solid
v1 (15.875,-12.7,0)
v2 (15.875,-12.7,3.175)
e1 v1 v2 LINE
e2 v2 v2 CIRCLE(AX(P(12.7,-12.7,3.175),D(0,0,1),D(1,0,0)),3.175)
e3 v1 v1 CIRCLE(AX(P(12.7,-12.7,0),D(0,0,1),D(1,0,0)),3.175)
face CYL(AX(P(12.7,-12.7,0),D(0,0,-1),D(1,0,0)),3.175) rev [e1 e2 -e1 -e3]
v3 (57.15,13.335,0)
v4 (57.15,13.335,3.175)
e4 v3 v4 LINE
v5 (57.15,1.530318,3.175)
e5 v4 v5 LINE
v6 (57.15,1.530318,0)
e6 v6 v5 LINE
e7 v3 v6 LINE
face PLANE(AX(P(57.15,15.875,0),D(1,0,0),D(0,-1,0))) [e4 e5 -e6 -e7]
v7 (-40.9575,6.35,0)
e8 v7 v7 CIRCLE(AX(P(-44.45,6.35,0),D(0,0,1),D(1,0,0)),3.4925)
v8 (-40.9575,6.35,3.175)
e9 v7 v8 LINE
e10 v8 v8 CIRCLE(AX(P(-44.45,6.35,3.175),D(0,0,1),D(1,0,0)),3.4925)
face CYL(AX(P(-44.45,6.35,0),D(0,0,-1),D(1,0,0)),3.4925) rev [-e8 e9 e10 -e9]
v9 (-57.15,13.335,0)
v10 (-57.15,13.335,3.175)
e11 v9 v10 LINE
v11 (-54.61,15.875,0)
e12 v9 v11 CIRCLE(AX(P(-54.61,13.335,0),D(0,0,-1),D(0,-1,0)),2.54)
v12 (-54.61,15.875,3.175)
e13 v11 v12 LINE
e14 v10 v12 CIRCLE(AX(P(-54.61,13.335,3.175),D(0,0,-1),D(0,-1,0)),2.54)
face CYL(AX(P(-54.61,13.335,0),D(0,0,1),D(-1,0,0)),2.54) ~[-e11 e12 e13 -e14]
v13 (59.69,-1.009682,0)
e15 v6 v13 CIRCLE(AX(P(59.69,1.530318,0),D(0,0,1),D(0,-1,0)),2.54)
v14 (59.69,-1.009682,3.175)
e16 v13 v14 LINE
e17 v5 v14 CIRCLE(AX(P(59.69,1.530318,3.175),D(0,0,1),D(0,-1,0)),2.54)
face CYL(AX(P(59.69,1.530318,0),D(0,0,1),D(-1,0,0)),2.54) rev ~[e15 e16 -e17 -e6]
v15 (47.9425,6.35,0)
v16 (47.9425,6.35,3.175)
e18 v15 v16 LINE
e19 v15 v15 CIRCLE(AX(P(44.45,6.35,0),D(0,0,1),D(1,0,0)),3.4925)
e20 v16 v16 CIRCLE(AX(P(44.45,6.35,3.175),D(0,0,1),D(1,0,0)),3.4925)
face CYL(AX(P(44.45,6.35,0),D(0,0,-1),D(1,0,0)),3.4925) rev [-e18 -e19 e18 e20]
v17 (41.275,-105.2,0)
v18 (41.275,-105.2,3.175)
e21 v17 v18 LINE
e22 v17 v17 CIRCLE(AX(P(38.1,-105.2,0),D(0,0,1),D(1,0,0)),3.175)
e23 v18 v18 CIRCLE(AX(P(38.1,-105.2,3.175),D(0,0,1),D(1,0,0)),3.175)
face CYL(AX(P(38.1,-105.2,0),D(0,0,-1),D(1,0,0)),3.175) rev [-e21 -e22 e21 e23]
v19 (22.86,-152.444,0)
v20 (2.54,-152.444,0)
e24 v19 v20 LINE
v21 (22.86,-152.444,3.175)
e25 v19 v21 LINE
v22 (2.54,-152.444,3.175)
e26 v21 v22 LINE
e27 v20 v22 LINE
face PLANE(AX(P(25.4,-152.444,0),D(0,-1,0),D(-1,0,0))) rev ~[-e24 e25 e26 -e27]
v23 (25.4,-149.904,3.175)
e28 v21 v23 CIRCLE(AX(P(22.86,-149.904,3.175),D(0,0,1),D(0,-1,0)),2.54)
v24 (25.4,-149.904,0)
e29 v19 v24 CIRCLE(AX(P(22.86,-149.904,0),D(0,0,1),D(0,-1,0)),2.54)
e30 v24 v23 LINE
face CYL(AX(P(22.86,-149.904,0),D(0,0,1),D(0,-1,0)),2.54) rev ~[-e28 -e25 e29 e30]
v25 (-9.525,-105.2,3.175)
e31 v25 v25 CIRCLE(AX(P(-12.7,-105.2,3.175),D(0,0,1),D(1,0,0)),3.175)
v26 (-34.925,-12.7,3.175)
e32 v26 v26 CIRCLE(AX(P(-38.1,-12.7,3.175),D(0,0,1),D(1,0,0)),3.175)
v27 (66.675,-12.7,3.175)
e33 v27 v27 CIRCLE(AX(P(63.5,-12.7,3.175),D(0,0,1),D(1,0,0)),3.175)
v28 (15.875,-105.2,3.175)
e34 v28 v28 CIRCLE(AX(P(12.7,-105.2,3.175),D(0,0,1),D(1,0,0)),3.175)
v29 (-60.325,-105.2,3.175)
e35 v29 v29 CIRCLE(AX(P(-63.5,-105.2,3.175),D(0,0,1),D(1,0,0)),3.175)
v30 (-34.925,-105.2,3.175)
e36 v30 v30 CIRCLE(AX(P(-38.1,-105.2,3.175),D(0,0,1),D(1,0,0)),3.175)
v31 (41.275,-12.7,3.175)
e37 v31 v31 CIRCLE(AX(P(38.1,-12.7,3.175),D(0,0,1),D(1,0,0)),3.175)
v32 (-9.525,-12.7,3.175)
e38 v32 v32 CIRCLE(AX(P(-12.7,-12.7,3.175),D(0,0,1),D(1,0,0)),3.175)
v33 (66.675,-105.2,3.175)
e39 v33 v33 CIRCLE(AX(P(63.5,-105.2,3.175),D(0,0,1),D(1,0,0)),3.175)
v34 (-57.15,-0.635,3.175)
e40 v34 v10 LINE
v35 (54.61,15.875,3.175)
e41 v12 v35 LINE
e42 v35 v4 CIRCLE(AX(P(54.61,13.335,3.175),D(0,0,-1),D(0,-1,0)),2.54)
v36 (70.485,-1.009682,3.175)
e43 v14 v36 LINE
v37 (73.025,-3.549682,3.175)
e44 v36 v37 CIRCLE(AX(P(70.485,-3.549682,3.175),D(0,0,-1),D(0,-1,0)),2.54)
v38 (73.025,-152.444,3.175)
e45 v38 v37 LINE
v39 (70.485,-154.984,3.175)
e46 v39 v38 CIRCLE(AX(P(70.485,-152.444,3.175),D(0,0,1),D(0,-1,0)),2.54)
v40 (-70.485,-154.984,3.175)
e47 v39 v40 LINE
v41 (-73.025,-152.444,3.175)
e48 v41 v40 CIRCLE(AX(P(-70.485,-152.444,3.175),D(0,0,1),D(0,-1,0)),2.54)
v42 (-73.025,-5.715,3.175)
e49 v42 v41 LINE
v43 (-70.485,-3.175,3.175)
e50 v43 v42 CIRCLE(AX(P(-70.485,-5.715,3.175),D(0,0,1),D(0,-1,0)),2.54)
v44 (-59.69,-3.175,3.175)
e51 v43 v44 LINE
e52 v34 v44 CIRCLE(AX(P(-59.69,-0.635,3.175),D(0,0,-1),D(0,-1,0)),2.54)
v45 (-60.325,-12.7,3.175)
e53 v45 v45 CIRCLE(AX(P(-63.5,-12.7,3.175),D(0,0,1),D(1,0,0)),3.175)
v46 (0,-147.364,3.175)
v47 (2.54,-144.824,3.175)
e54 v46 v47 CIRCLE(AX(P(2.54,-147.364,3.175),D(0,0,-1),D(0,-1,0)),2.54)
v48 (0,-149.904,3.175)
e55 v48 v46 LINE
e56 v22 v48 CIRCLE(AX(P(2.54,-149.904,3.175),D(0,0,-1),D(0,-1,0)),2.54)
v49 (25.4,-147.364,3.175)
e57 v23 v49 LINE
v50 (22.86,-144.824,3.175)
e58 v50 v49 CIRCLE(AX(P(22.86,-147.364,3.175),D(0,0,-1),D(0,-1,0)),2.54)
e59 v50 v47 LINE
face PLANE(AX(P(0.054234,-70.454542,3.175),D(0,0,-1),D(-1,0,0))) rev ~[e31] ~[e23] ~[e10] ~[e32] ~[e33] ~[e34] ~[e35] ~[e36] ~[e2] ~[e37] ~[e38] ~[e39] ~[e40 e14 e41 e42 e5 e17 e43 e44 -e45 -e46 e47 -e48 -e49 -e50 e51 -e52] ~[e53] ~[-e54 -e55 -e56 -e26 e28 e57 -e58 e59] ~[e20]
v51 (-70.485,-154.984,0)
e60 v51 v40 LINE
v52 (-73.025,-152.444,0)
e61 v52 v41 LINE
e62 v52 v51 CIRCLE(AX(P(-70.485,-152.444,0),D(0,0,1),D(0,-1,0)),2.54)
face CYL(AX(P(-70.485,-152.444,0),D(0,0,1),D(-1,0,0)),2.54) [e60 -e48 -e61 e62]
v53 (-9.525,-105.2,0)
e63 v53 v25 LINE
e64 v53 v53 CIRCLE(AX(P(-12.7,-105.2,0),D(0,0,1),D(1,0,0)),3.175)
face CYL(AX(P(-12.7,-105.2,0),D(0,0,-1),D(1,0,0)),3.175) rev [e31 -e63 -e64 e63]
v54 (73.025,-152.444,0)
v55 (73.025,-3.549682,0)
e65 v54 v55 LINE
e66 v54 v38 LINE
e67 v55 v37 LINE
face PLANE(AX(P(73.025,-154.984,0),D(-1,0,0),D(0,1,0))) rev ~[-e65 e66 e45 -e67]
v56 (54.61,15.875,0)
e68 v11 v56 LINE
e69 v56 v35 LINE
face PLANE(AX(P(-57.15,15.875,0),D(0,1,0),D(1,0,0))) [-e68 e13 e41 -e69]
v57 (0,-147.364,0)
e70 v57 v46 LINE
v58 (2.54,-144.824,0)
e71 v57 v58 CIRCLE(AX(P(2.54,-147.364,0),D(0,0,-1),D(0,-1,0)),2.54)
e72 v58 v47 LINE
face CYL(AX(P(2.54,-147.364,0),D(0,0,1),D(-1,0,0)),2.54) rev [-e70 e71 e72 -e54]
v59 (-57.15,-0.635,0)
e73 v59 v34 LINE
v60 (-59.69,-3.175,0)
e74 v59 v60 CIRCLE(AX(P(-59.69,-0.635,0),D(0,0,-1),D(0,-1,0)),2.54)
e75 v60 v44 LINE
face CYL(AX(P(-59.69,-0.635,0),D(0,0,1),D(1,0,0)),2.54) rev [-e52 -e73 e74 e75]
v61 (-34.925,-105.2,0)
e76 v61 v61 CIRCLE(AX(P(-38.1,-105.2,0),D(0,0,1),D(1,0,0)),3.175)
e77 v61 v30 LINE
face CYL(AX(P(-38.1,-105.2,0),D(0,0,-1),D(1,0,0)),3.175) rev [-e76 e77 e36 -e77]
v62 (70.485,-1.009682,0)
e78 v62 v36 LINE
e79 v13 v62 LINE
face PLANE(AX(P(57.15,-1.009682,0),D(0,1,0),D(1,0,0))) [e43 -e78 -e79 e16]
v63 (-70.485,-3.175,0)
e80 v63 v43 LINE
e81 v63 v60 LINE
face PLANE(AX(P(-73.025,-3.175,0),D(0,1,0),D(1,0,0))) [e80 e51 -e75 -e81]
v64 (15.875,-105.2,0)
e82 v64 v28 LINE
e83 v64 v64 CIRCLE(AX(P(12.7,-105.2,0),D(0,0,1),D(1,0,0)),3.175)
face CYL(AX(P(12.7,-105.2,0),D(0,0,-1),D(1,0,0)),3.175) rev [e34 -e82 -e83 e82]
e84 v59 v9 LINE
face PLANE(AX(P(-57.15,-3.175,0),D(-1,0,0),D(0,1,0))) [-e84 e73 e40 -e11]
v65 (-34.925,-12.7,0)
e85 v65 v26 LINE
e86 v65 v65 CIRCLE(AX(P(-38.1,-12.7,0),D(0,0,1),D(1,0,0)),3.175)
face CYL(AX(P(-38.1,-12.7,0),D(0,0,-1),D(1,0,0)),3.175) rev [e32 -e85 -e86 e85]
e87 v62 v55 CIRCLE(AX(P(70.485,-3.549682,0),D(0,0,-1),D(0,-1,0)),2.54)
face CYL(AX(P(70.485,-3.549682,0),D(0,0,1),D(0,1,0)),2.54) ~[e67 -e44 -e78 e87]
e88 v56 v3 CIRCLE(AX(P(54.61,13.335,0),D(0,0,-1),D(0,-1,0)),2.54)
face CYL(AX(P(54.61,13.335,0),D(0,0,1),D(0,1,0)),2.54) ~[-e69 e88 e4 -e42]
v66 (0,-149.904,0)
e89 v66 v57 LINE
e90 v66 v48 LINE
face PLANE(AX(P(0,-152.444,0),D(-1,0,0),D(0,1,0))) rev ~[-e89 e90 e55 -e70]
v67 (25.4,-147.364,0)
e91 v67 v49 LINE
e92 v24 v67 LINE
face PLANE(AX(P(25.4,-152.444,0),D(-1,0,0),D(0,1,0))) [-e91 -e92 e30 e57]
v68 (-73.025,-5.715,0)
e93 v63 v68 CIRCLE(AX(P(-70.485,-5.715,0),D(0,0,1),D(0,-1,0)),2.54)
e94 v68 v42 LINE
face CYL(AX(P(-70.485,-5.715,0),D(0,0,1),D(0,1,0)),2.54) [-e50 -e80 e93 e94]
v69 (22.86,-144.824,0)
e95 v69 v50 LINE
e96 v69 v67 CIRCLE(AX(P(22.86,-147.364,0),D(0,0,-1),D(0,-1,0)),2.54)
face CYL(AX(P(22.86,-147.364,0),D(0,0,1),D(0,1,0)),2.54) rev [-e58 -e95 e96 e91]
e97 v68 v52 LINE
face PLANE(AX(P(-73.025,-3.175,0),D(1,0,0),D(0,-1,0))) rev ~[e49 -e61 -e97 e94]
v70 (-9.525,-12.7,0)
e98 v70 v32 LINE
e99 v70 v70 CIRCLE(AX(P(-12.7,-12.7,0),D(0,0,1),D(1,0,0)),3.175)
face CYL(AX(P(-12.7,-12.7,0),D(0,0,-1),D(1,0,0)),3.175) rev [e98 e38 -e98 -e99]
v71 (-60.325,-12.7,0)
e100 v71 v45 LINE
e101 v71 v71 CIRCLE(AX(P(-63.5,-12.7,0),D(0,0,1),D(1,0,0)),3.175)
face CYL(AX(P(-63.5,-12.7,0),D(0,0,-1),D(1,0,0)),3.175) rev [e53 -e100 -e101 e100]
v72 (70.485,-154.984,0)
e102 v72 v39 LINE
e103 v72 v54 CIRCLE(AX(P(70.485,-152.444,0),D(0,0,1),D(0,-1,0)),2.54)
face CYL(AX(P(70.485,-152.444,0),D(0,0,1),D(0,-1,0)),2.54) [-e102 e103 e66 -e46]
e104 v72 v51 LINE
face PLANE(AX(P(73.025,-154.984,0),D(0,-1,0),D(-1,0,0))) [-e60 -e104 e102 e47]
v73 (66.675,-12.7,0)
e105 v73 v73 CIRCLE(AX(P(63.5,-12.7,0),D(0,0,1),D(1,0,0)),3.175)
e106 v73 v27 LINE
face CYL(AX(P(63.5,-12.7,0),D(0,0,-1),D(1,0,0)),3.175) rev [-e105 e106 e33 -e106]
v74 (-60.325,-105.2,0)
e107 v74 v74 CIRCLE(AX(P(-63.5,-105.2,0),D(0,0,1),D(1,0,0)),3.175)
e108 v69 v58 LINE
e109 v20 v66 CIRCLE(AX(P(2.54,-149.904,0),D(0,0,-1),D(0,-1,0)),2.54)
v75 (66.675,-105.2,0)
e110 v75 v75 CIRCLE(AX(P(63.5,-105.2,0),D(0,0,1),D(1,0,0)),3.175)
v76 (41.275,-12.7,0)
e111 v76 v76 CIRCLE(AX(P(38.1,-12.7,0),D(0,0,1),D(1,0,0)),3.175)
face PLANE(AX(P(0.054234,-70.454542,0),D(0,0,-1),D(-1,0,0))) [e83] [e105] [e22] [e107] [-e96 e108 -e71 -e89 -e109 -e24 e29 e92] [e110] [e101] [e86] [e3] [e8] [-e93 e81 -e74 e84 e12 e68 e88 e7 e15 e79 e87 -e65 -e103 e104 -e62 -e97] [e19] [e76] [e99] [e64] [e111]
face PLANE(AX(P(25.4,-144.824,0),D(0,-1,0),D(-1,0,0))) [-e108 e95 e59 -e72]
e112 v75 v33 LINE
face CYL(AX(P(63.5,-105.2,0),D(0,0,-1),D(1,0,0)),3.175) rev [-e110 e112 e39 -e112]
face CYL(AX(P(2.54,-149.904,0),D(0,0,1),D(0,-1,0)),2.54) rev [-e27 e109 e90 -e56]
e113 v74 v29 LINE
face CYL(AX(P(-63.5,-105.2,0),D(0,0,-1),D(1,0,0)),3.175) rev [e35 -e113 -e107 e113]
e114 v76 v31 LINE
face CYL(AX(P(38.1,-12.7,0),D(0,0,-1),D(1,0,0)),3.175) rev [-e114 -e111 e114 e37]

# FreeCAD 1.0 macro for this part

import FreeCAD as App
import Part
import Sketcher
from FreeCAD import Vector
Q = App.Units.Quantity


def edges_at(feature, points):
    """Names of the edges that pass closest to the given points."""
    edges = feature.Shape.Edges
    near = lambda p: min(range(len(edges)), key=lambda i: edges[i].distToShape(Part.Vertex(*p))[0])
    return sorted({f"Edge{near(p) + 1}" for p in points})

doc = App.newDocument("Part")
body = doc.addObject("PartDesign::Body", "Body")

# Sketch on XY plane
sketch1 = body.newObject("Sketcher::SketchObject", "Sketch")
sketch1.AttachmentSupport = (doc.getObject("XY_Plane"), [""])
sketch1.MapMode = "FlatFace"
sketch1.addGeometry(Part.LineSegment(Vector(-57.1, 15.9, 0), Vector(-57.1, -3.2, 0)), False)
sketch1.addGeometry(Part.LineSegment(Vector(-57.1, -3.2, 0), Vector(-73, -3.2, 0)), False)
sketch1.addGeometry(Part.LineSegment(Vector(-73, -3.2, 0), Vector(-73, -155, 0)), False)
sketch1.addGeometry(Part.LineSegment(Vector(-73, -155, 0), Vector(73, -155, 0)), False)
sketch1.addGeometry(Part.LineSegment(Vector(73, -155, 0), Vector(73, -1, 0)), False)
sketch1.addGeometry(Part.LineSegment(Vector(73, -1, 0), Vector(57.1, -1, 0)), False)
sketch1.addGeometry(Part.LineSegment(Vector(57.1, -1, 0), Vector(57.1, 15.9, 0)), False)
sketch1.addGeometry(Part.LineSegment(Vector(57.1, 15.9, 0), Vector(-57.1, 15.9, 0)), False)
sketch1.addGeometry(Part.Circle(Vector(63.5, -105.2, 0), Vector(0, 0, 1), 3.2), False)
sketch1.addGeometry(Part.Circle(Vector(38.1, -105.2, 0), Vector(0, 0, 1), 3.2), False)
sketch1.addGeometry(Part.Circle(Vector(12.7, -105.2, 0), Vector(0, 0, 1), 3.2), False)
sketch1.addGeometry(Part.Circle(Vector(-12.7, -105.2, 0), Vector(0, 0, 1), 3.2), False)
sketch1.addGeometry(Part.Circle(Vector(-38.1, -105.2, 0), Vector(0, 0, 1), 3.2), False)
sketch1.addGeometry(Part.Circle(Vector(-63.5, -105.2, 0), Vector(0, 0, 1), 3.2), False)
sketch1.addGeometry(Part.Circle(Vector(63.5, -12.7, 0), Vector(0, 0, 1), 3.2), False)
sketch1.addGeometry(Part.Circle(Vector(38.1, -12.7, 0), Vector(0, 0, 1), 3.2), False)
sketch1.addGeometry(Part.Circle(Vector(44.5, 6.3, 0), Vector(0, 0, 1), 3.5), False)
sketch1.addGeometry(Part.Circle(Vector(12.7, -12.7, 0), Vector(0, 0, 1), 3.2), False)
sketch1.addGeometry(Part.Circle(Vector(-12.7, -12.7, 0), Vector(0, 0, 1), 3.2), False)
sketch1.addGeometry(Part.Circle(Vector(-38.1, -12.7, 0), Vector(0, 0, 1), 3.2), False)
sketch1.addGeometry(Part.Circle(Vector(-63.5, -12.7, 0), Vector(0, 0, 1), 3.2), False)
sketch1.addGeometry(Part.Circle(Vector(-44.5, 6.3, 0), Vector(0, 0, 1), 3.5), False)
sketch1.addConstraint(Sketcher.Constraint("Coincident", 0, 2, 1, 1))
sketch1.addConstraint(Sketcher.Constraint("Coincident", 1, 2, 2, 1))
sketch1.addConstraint(Sketcher.Constraint("Coincident", 2, 2, 3, 1))
sketch1.addConstraint(Sketcher.Constraint("Coincident", 3, 2, 4, 1))
sketch1.addConstraint(Sketcher.Constraint("Coincident", 4, 2, 5, 1))
sketch1.addConstraint(Sketcher.Constraint("Coincident", 5, 2, 6, 1))
sketch1.addConstraint(Sketcher.Constraint("Coincident", 6, 2, 7, 1))
sketch1.addConstraint(Sketcher.Constraint("Coincident", 7, 2, 0, 1))
sketch1.addConstraint(Sketcher.Constraint("Vertical", 0))
sketch1.addConstraint(Sketcher.Constraint("Horizontal", 1))
sketch1.addConstraint(Sketcher.Constraint("Vertical", 2))
sketch1.addConstraint(Sketcher.Constraint("Horizontal", 3))
sketch1.addConstraint(Sketcher.Constraint("Vertical", 4))
sketch1.addConstraint(Sketcher.Constraint("Horizontal", 5))
sketch1.addConstraint(Sketcher.Constraint("Vertical", 6))
sketch1.addConstraint(Sketcher.Constraint("Horizontal", 7))
sketch1.addConstraint(Sketcher.Constraint("Equal", 8, 9))
sketch1.addConstraint(Sketcher.Constraint("Equal", 9, 10))
sketch1.addConstraint(Sketcher.Constraint("Equal", 10, 11))
sketch1.addConstraint(Sketcher.Constraint("Equal", 11, 12))
sketch1.addConstraint(Sketcher.Constraint("Equal", 12, 13))
sketch1.addConstraint(Sketcher.Constraint("Equal", 13, 14))
sketch1.addConstraint(Sketcher.Constraint("Equal", 14, 15))
sketch1.addConstraint(Sketcher.Constraint("Equal", 15, 17))
sketch1.addConstraint(Sketcher.Constraint("Equal", 17, 18))
sketch1.addConstraint(Sketcher.Constraint("Equal", 18, 19))
sketch1.addConstraint(Sketcher.Constraint("Equal", 19, 20))
sketch1.addConstraint(Sketcher.Constraint("Equal", 16, 21))
sketch1.addConstraint(Sketcher.Constraint("Symmetric", 10, 3, 11, 3, -2))
sketch1.addConstraint(Sketcher.Constraint("Symmetric", 9, 3, 12, 3, -2))
sketch1.addConstraint(Sketcher.Constraint("Symmetric", 8, 3, 13, 3, -2))
sketch1.addConstraint(Sketcher.Constraint("Symmetric", 17, 3, 18, 3, -2))
sketch1.addConstraint(Sketcher.Constraint("Symmetric", 15, 3, 19, 3, -2))
sketch1.addConstraint(Sketcher.Constraint("Symmetric", 14, 3, 20, 3, -2))
sketch1.addConstraint(Sketcher.Constraint("Symmetric", 16, 3, 21, 3, -2))
sketch1.addConstraint(Sketcher.Constraint("Horizontal", 8, 3, 9, 3))
sketch1.addConstraint(Sketcher.Constraint("Horizontal", 9, 3, 10, 3))
sketch1.addConstraint(Sketcher.Constraint("Horizontal", 14, 3, 15, 3))
sketch1.addConstraint(Sketcher.Constraint("Horizontal", 15, 3, 17, 3))
sketch1.addConstraint(Sketcher.Constraint("Vertical", 8, 3, 14, 3))
sketch1.addConstraint(Sketcher.Constraint("Vertical", 9, 3, 15, 3))
sketch1.addConstraint(Sketcher.Constraint("Vertical", 10, 3, 17, 3))
sketch1.addConstraint(Sketcher.Constraint("Equal", 1, 5))
sketch1.addConstraint(Sketcher.Constraint("Diameter", 8, Q("0.25 in")))
sketch1.addConstraint(Sketcher.Constraint("Diameter", 16, Q("0.275 in")))
sketch1.addConstraint(Sketcher.Constraint("DistanceX", 7, 2, 7, 1, Q("4.5 in")))
sketch1.addConstraint(Sketcher.Constraint("DistanceX", 9, 3, 8, 3, Q("1 in")))
sketch1.addConstraint(Sketcher.Constraint("DistanceX", 10, 3, 9, 3, Q("1 in")))
sketch1.addConstraint(Sketcher.Constraint("DistanceX", 11, 3, 10, 3, Q("1 in")))
sketch1.addConstraint(Sketcher.Constraint("DistanceX", 3, 1, 3, 2, Q("5.75 in")))
sketch1.addConstraint(Sketcher.Constraint("DistanceY", 0, 2, 0, 1, Q("0.75 in")))
sketch1.addConstraint(Sketcher.Constraint("DistanceY", 14, 3, -1, 1, Q("0.5 in")))
sketch1.addConstraint(Sketcher.Constraint("DistanceX", 0, 2, 21, 3, Q("0.5 in")))
sketch1.addConstraint(Sketcher.Constraint("DistanceX", 16, 3, 5, 2, Q("0.5 in")))
sketch1.addConstraint(Sketcher.Constraint("DistanceY", -1, 1, 16, 3, Q("0.25 in")))
sketch1.addConstraint(Sketcher.Constraint("DistanceY", 2, 2, 13, 3, Q("1.96 in")))
sketch1.addConstraint(Sketcher.Constraint("DistanceY", 0, 2, -1, 1, Q("0.125 in")))
sketch1.addConstraint(Sketcher.Constraint("DistanceY", 2, 2, 2, 1, 151.809))
sketch1.addConstraint(Sketcher.Constraint("DistanceY", 6, 1, 6, 2, 16.884682))
pad1 = body.newObject("PartDesign::Pad", "Pad")
pad1.Profile = sketch1
pad1.Length = Q("0.125 in")
doc.recompute()

fillet = body.newObject("PartDesign::Fillet", "Fillet")
fillet.Base = (pad1, edges_at(pad1, [
    (-73.025, -154.984, 1.587),
    (-73.025, -3.175, 1.587),
    (-57.15, 15.875, 1.587),
    (57.15, 15.875, 1.587),
    (73.025, -1.01, 1.587),
    (73.025, -154.984, 1.587),
]))
fillet.Radius = Q("0.1 in")
doc.recompute()

fillet2 = body.newObject("PartDesign::Fillet", "Fillet001")
fillet2.Base = (fillet, edges_at(fillet, [(-57.15, -3.175, 1.587), (57.15, -1.01, 1.587)]))
fillet2.Radius = Q("0.1 in")

# Sketch on XY plane
sketch2 = body.newObject("Sketcher::SketchObject", "Sketch001")
sketch2.AttachmentSupport = (doc.getObject("XY_Plane"), [""])
sketch2.MapMode = "FlatFace"
sketch2.addGeometry(Part.LineSegment(Vector(25, -145, 0), Vector(25, -152, 0)), False)
sketch2.addGeometry(Part.LineSegment(Vector(25, -152, 0), Vector(0, -152, 0)), False)
sketch2.addGeometry(Part.LineSegment(Vector(0, -152, 0), Vector(0, -145, 0)), False)
sketch2.addGeometry(Part.LineSegment(Vector(0, -145, 0), Vector(25, -145, 0)), False)
sketch2.addConstraint(Sketcher.Constraint("Coincident", 0, 2, 1, 1))
sketch2.addConstraint(Sketcher.Constraint("Coincident", 1, 2, 2, 1))
sketch2.addConstraint(Sketcher.Constraint("Coincident", 2, 2, 3, 1))
sketch2.addConstraint(Sketcher.Constraint("Coincident", 3, 2, 0, 1))
sketch2.addConstraint(Sketcher.Constraint("Vertical", 0))
sketch2.addConstraint(Sketcher.Constraint("Horizontal", 1))
sketch2.addConstraint(Sketcher.Constraint("Vertical", 2))
sketch2.addConstraint(Sketcher.Constraint("Horizontal", 3))
sketch2.addConstraint(Sketcher.Constraint("PointOnObject", 1, 2, -2))
sketch2.addConstraint(Sketcher.Constraint("DistanceX", 1, 2, 1, 1, Q("1 in")))
sketch2.addConstraint(Sketcher.Constraint("DistanceY", 0, 2, 0, 1, Q("0.3 in")))
sketch2.addConstraint(Sketcher.Constraint("DistanceY", 0, 2, -1, 1, 152.444))
pocket1 = body.newObject("PartDesign::Pocket", "Pocket")
pocket1.Profile = sketch2
pocket1.Type = "ThroughAll"
pocket1.Reversed = True
doc.recompute()

fillet3 = body.newObject("PartDesign::Fillet", "Fillet002")
fillet3.Base = (pocket1, edges_at(pocket1, [
    (0, -144.824, 1.587),
    (0, -152.444, 1.587),
    (25.4, -152.444, 1.587),
    (25.4, -144.824, 1.587),
]))
fillet3.Radius = Q("0.1 in")

doc.recompute()
